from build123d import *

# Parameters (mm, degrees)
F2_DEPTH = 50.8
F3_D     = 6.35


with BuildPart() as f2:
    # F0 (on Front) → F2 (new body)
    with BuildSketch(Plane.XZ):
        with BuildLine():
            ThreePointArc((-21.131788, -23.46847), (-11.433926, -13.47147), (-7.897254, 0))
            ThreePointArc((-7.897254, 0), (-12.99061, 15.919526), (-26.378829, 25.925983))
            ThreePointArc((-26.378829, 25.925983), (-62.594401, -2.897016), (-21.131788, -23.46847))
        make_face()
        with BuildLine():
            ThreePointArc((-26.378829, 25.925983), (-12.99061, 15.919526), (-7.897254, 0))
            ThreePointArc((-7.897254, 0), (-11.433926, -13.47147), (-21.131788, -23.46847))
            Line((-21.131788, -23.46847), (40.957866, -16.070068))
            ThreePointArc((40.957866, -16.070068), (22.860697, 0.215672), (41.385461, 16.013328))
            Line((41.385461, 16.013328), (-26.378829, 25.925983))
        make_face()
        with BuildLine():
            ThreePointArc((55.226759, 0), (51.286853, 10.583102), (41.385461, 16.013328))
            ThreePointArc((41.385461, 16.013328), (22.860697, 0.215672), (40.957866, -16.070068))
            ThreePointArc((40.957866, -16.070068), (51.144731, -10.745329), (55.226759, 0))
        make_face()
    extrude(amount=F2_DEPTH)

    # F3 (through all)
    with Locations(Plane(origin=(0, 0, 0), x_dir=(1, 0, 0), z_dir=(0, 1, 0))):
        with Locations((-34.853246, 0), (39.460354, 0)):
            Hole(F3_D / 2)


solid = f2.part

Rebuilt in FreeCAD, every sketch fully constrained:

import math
import FreeCAD as App
import Part
import Sketcher
Q = App.Units.Quantity

doc = App.newDocument("Part")
body = doc.addObject("PartDesign::Body", "Body")

sketch1 = body.newObject("Sketcher::SketchObject", "Sketch")
sketch1.AttachmentSupport = (doc.getObject("XZ_Plane"), [""])
sketch1.MapMode = "FlatFace"
sketch1.addGeometry([
    Part.ArcOfCircle(Part.Circle(App.Vector(-35, 0, 0), App.Vector(0, 0, 1), 27), math.radians(71), math.radians(301)),
    Part.LineSegment(App.Vector(-21, -23, 0), App.Vector(41, -16, 0)),
    Part.ArcOfCircle(Part.Circle(App.Vector(39, 0, 0), App.Vector(0, 0, 1), 16), math.radians(-83), math.radians(0)),
    Part.ArcOfCircle(Part.Circle(App.Vector(39, 0, 0), App.Vector(0, 0, 1), 16), math.radians(0), math.radians(82)),
    Part.LineSegment(App.Vector(41, 16, 0), App.Vector(-26, 26, 0)),
], False)
sketch1.addConstraint([
    Sketcher.Constraint("Coincident", 0, 2, 1, 1),
    Sketcher.Constraint("Tangent", 1, 2, 2, 1),
    Sketcher.Constraint("Tangent", 2, 2, 3, 1),
    Sketcher.Constraint("Tangent", 3, 2, 4, 1),
    Sketcher.Constraint("Coincident", 4, 2, 0, 1),
    Sketcher.Constraint("Equal", 2, 3),
    Sketcher.Constraint("PointOnObject", 0, 3, -1),
    Sketcher.Constraint("PointOnObject", 2, 3, -1),
    Sketcher.Constraint("PointOnObject", 2, 2, -1),
    Sketcher.Constraint("Radius", 2, Q("16.183749 mm")),
    Sketcher.Constraint("Radius", 0, Q("27.425293 mm")),
    Sketcher.Constraint("DistanceY", 0, 2, 1, 2, Q("7.398402 mm")),
    Sketcher.Constraint("DistanceX", 3, 2, 2, 2, Q("13.841298 mm")),
    Sketcher.Constraint("Distance", 4, Q("68.485471 mm")),
    Sketcher.Constraint("DistanceX", -1, 1, 2, 3, Q("39.04301 mm")),
])
pad1 = body.newObject("PartDesign::Pad", "Pad")
pad1.Profile = sketch1
pad1.Length = Q("2 in")

sketch2 = body.newObject("Sketcher::SketchObject", "Sketch001")
sketch2.AttachmentSupport = (doc.getObject("XZ_Plane"), [""])
sketch2.MapMode = "FlatFace"
sketch2.addGeometry([
    Part.Circle(App.Vector(-34.9, 0, 0), App.Vector(0, 0, 1), 3.2),
    Part.Circle(App.Vector(39.5, 0, 0), App.Vector(0, 0, 1), 3.2),
], False)
sketch2.addConstraint([
    Sketcher.Constraint("Equal", 0, 1),
    Sketcher.Constraint("PointOnObject", 0, 3, -1),
    Sketcher.Constraint("PointOnObject", 1, 3, -1),
    Sketcher.Constraint("Diameter", 0, Q("0.25 in")),
    Sketcher.Constraint("DistanceX", 0, 3, 1, 3, Q("74.3136 mm")),
    Sketcher.Constraint("DistanceX", 0, 3, -1, 1, Q("34.853246 mm")),
])
doc.recompute()
hole = body.newObject("PartDesign::Hole", "Hole")
hole.Profile = sketch2
hole.ThreadType = "None"
hole.Diameter = Q("0.25 in")
hole.DepthType = "ThroughAll"
hole.Reversed = True

doc.recompute()
